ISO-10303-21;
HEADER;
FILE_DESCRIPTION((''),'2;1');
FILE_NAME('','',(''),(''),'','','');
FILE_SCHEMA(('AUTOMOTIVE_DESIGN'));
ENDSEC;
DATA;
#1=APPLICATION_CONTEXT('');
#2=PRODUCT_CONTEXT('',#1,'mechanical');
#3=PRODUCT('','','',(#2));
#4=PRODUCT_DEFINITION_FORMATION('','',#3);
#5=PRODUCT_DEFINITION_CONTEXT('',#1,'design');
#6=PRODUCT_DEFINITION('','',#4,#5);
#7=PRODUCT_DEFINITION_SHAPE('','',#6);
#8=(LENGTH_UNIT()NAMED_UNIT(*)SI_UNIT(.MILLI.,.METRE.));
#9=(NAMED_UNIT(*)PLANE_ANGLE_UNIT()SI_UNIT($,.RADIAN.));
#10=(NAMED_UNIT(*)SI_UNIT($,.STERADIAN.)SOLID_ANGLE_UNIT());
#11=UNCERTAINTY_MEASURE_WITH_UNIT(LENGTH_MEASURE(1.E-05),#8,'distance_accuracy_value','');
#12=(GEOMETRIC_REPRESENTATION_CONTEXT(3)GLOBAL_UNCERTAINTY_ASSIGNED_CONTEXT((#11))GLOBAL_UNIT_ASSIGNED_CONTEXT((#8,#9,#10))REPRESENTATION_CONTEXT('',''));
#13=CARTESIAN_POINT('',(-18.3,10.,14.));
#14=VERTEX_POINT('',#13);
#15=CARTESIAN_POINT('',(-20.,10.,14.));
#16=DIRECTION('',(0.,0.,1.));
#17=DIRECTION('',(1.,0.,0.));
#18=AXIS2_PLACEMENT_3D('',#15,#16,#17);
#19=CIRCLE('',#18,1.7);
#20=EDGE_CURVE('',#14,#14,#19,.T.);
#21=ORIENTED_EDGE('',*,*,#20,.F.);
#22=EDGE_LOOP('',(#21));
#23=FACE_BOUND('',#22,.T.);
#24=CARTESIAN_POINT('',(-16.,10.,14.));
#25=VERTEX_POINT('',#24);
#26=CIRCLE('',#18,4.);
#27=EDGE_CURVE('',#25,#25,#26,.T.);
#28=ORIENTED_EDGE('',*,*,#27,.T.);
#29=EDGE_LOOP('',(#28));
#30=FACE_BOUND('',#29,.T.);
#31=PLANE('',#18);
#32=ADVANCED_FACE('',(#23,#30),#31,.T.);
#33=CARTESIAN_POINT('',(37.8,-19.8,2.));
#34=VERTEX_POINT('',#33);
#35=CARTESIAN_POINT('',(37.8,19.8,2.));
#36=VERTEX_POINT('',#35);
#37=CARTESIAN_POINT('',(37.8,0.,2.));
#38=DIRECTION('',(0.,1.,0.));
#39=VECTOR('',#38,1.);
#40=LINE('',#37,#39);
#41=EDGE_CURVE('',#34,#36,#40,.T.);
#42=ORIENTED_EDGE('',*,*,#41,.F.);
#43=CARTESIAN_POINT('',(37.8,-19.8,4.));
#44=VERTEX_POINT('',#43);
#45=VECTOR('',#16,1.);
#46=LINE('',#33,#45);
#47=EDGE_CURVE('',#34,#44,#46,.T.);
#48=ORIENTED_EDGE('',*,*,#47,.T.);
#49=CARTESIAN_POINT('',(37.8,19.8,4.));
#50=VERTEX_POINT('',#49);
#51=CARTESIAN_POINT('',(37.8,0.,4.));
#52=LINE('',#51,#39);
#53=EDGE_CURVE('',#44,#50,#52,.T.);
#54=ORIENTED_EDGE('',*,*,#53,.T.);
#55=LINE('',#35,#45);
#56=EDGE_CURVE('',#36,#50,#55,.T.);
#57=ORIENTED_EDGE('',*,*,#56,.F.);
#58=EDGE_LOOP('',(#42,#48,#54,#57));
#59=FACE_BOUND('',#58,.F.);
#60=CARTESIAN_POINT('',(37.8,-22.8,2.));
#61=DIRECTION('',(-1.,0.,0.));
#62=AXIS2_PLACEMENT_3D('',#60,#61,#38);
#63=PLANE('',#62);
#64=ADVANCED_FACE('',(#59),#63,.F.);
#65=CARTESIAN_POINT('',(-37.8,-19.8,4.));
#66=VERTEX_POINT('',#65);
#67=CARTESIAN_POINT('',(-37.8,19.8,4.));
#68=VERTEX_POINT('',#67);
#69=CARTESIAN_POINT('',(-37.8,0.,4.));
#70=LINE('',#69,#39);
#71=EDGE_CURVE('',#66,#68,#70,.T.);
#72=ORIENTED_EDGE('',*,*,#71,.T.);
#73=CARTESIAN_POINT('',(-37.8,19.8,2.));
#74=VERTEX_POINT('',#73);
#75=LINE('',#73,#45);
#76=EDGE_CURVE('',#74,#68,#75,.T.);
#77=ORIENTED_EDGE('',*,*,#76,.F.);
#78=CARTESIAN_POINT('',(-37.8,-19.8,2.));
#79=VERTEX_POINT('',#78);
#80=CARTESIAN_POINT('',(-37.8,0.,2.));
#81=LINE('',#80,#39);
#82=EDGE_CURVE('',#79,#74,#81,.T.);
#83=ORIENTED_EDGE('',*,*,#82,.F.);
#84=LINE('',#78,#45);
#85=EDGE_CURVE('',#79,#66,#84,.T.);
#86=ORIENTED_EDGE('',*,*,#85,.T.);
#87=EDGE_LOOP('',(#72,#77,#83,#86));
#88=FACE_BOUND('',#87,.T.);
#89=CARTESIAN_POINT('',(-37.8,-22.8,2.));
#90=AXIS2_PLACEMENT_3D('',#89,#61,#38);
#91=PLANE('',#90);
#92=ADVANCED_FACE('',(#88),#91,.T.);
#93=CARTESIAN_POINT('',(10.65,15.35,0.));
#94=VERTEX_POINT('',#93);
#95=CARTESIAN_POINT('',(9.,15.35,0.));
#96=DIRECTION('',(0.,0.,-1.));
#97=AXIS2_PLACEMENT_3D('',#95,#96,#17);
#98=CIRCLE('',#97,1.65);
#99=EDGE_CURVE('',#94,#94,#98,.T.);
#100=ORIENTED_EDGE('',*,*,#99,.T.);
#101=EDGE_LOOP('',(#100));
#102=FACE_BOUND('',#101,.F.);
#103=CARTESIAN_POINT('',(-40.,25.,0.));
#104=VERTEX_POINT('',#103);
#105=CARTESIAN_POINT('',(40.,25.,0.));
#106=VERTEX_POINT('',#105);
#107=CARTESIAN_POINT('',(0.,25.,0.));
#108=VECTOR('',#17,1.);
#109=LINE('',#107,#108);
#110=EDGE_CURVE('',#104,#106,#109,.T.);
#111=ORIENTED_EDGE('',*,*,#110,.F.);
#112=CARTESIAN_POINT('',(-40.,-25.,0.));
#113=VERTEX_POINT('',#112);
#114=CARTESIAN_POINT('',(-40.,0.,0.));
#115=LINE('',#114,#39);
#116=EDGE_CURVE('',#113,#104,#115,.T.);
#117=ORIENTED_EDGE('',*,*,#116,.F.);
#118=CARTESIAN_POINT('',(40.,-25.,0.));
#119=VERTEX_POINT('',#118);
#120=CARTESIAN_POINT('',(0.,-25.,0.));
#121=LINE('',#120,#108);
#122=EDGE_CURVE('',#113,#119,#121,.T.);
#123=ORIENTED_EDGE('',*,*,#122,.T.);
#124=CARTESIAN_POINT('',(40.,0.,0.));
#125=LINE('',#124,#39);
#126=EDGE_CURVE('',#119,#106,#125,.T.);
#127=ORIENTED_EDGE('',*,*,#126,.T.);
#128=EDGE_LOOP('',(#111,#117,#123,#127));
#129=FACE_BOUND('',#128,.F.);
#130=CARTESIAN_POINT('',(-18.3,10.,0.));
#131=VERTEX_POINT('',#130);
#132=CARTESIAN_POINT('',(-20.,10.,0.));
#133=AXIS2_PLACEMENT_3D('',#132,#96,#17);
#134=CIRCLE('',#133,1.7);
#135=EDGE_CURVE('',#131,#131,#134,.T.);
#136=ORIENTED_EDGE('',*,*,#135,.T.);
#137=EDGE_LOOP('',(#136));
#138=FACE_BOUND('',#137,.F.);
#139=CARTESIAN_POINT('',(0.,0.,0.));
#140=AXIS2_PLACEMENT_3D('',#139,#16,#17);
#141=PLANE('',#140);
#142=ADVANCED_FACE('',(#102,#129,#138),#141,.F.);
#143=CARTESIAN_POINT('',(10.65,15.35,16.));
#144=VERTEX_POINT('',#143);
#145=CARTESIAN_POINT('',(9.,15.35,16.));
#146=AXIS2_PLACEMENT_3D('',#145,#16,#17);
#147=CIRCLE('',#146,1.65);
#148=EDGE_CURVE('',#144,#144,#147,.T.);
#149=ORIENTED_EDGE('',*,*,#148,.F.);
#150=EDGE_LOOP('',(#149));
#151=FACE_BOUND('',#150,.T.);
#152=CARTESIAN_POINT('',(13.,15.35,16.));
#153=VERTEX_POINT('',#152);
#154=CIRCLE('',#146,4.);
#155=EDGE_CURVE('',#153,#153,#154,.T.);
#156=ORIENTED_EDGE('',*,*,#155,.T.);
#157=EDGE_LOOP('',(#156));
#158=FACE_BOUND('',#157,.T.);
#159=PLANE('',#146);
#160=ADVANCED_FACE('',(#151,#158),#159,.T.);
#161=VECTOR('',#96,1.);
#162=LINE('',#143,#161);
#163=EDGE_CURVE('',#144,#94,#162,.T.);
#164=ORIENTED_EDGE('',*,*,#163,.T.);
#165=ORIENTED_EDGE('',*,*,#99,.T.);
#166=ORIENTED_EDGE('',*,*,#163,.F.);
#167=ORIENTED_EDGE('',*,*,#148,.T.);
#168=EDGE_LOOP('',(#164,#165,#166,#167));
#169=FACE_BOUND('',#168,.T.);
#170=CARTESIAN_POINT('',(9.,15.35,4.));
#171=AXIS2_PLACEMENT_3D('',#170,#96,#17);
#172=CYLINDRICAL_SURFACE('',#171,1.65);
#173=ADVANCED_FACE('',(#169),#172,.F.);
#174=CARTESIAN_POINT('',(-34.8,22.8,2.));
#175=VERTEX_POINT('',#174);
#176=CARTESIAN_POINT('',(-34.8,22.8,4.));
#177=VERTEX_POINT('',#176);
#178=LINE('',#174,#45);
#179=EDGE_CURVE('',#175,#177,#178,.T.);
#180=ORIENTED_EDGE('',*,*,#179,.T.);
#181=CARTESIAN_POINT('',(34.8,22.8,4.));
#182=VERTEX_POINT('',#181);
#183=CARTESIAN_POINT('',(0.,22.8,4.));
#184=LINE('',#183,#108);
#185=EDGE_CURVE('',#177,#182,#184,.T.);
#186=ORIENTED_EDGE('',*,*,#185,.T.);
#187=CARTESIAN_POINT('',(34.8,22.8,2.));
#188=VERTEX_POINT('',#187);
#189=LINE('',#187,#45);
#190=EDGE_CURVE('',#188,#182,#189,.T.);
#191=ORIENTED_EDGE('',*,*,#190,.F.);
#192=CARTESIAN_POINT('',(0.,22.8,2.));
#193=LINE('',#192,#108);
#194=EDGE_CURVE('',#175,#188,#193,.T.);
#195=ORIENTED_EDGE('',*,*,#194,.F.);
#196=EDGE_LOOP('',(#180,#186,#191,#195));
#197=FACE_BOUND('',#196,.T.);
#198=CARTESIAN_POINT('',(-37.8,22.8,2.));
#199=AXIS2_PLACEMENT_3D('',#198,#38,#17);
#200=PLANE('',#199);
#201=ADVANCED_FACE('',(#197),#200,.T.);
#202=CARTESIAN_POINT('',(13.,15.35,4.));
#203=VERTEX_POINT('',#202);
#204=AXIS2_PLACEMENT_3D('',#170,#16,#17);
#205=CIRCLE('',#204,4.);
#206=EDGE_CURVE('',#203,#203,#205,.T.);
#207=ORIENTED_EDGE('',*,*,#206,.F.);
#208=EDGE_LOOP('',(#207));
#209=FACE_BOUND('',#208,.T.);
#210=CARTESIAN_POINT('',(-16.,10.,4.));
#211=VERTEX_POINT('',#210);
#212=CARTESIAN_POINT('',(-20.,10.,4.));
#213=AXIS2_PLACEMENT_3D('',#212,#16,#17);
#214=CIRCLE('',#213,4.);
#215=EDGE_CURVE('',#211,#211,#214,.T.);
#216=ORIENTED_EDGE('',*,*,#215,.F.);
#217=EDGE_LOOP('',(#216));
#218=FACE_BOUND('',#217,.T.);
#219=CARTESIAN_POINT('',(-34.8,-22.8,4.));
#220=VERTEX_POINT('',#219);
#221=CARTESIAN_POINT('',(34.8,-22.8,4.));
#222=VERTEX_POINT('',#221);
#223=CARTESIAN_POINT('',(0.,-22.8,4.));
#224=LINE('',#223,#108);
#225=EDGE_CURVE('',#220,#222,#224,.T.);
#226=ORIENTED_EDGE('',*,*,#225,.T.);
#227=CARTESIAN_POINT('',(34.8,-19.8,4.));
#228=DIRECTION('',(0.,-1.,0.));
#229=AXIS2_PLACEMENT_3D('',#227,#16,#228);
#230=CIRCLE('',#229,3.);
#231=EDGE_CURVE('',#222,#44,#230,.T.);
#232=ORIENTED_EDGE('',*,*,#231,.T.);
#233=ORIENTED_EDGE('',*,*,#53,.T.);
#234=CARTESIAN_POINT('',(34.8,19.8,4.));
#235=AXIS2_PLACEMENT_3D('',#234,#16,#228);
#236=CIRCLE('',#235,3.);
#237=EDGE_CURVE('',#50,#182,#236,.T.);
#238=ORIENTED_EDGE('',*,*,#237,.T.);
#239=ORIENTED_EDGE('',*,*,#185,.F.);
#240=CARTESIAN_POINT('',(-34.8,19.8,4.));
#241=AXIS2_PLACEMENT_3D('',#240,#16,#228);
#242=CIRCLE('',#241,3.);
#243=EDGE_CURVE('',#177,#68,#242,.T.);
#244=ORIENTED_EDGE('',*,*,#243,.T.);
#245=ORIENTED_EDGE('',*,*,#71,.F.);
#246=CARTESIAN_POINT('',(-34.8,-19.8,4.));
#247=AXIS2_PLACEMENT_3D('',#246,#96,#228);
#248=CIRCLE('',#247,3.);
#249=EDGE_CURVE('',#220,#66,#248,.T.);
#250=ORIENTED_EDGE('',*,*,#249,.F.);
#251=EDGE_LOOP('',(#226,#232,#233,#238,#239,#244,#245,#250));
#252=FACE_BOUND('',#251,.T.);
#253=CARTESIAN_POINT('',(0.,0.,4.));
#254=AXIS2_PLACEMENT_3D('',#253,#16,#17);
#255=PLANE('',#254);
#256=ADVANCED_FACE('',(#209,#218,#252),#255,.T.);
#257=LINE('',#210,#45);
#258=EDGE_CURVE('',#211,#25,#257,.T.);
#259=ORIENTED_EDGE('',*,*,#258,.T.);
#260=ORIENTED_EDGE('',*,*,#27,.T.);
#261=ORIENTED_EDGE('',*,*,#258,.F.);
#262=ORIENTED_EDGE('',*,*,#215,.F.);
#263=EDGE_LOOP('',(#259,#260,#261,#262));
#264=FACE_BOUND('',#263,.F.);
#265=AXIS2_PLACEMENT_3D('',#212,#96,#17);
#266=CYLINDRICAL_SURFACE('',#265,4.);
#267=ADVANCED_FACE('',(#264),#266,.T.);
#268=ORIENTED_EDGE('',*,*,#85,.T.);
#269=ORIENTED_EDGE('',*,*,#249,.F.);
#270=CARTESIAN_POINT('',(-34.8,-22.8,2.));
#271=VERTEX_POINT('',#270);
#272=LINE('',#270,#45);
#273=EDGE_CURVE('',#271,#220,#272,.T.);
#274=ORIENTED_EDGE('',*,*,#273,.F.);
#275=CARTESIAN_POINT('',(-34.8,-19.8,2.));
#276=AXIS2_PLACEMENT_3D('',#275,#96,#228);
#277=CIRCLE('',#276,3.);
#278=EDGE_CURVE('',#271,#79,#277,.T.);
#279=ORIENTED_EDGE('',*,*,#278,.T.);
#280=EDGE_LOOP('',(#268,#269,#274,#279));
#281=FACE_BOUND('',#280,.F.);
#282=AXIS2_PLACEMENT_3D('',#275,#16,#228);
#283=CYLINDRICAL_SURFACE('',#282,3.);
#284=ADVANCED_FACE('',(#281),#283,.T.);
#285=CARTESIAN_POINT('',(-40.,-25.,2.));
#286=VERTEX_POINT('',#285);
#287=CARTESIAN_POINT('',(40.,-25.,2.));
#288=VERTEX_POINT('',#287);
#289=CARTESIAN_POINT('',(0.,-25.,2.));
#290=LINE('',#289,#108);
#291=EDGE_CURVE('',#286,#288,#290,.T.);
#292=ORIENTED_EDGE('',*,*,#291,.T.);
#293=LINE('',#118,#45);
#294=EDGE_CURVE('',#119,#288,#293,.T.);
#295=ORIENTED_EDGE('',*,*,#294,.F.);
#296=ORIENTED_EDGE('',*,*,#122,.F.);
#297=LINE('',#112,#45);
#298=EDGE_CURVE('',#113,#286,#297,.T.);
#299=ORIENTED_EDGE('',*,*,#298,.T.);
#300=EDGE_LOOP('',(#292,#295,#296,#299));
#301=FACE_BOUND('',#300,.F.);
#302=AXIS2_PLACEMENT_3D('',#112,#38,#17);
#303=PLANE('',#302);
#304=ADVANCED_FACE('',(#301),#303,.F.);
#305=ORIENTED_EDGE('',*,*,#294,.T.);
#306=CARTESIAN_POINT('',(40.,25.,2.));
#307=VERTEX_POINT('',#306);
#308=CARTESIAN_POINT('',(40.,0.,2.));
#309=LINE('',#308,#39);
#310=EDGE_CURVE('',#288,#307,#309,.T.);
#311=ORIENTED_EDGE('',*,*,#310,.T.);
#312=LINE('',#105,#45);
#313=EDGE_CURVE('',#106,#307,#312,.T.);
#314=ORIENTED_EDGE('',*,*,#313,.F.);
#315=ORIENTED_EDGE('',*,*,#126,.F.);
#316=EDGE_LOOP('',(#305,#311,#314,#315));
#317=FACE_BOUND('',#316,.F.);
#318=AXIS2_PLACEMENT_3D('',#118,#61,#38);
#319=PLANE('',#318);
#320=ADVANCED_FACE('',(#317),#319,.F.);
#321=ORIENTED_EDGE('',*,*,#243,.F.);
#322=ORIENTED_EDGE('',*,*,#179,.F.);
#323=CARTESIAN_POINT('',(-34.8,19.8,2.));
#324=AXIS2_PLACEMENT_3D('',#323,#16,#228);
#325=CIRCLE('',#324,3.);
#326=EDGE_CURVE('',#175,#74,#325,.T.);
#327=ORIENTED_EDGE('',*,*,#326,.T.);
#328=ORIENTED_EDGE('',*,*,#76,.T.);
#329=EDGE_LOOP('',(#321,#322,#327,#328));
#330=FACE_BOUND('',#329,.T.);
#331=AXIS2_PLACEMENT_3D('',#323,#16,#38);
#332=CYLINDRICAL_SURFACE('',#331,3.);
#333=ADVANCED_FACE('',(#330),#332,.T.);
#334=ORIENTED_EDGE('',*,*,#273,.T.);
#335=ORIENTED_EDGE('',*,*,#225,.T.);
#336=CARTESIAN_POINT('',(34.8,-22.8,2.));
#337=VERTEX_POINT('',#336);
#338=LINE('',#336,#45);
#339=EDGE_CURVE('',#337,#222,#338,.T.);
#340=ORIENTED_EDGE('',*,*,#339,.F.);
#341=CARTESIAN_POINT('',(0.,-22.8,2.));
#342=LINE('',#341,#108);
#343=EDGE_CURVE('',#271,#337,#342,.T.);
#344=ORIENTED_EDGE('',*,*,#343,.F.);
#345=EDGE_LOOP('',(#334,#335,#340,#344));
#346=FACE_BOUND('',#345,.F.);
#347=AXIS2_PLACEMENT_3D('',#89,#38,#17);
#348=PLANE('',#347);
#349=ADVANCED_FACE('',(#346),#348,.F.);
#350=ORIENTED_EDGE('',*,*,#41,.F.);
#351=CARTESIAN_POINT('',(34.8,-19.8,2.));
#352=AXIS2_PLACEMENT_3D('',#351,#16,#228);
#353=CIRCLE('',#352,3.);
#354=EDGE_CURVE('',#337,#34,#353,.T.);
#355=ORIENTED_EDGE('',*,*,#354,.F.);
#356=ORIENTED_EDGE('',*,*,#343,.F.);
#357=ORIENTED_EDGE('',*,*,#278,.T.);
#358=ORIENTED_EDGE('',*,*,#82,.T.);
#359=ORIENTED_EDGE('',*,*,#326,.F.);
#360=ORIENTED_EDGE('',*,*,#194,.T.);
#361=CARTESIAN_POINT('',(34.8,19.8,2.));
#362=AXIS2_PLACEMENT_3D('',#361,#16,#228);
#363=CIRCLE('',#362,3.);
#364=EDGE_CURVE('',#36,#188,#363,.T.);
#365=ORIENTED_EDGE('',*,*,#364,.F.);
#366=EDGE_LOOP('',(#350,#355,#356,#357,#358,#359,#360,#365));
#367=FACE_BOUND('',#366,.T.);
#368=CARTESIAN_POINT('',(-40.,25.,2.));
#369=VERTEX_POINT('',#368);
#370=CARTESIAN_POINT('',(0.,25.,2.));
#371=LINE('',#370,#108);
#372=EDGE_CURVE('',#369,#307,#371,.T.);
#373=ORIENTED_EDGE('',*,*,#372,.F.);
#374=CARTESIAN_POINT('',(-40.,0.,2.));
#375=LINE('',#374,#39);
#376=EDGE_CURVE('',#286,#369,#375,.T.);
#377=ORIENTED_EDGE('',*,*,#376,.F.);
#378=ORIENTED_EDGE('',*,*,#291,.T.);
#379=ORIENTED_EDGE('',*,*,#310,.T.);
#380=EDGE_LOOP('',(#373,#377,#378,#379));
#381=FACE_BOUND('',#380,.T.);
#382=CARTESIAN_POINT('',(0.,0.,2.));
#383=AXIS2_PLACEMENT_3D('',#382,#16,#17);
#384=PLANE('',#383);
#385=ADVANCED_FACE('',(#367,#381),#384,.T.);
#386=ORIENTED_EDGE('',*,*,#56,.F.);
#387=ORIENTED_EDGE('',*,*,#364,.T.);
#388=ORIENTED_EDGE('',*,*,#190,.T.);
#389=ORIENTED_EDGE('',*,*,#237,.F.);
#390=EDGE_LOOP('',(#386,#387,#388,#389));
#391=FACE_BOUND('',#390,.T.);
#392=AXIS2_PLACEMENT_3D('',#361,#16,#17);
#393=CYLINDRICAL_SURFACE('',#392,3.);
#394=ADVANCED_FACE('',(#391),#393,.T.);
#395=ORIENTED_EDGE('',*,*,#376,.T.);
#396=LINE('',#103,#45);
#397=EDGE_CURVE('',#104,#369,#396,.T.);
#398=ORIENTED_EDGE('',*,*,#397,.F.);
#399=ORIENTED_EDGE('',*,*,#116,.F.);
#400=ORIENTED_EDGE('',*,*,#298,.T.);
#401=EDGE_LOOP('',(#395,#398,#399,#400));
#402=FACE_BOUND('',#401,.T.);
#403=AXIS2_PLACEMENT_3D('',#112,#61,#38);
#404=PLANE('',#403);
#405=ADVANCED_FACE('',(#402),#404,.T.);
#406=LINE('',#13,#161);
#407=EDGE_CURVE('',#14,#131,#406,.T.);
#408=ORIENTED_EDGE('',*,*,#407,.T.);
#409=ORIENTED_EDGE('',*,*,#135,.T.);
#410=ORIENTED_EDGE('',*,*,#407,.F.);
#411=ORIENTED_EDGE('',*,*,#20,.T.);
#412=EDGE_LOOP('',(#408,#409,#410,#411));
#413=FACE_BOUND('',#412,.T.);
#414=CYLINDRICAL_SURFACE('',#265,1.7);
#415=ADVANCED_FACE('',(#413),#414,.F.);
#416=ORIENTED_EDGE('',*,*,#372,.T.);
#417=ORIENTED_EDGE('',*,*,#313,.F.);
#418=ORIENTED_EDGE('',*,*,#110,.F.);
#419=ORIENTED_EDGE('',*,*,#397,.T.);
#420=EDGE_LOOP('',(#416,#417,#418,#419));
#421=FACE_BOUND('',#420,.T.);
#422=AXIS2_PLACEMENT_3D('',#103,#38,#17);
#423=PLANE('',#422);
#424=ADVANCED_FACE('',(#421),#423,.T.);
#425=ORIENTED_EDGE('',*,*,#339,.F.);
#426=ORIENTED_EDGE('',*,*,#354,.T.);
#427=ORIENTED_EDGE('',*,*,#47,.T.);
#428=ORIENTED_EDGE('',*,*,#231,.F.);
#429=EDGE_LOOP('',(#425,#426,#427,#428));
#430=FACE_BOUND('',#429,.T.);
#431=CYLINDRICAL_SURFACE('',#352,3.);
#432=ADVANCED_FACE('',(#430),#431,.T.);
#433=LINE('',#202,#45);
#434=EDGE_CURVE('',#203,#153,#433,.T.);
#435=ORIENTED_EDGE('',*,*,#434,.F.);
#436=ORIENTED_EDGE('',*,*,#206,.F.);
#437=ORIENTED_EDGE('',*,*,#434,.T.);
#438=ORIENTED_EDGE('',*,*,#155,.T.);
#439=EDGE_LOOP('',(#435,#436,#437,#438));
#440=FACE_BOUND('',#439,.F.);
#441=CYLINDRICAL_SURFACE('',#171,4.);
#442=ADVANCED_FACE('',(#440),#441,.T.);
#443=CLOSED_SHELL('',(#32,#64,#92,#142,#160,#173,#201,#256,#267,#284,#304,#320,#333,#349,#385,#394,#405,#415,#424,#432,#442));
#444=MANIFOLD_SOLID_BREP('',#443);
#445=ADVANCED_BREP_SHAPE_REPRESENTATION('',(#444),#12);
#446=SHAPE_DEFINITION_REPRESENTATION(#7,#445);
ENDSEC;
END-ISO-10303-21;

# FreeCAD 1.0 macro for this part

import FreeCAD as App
import Part
import Sketcher

V = App.Vector
Q = App.Units.Quantity


def edges_at(feature, points):
    """Names of the edges that pass closest to the given points."""
    edges = feature.Shape.Edges
    near = lambda p: min(range(len(edges)), key=lambda i: edges[i].distToShape(Part.Vertex(*p))[0])
    return sorted({f"Edge{near(p) + 1}" for p in points})

doc = App.newDocument("Part")
body = doc.addObject("PartDesign::Body", "Body")

sketch1 = doc.addObject("Sketcher::SketchObject", "Sketch")
body.addObject(sketch1)
sketch1.AttachmentSupport = (doc.XY_Plane, [""])
sketch1.MapMode = "FlatFace"
sketch1.addGeometry([
    Part.LineSegment(V(-40, 25, 0), V(-40, -25, 0)),
    Part.LineSegment(V(-40, -25, 0), V(40, -25, 0)),
    Part.LineSegment(V(40, -25, 0), V(40, 25, 0)),
    Part.LineSegment(V(40, 25, 0), V(-40, 25, 0)),
], False)
sketch1.addConstraint([
    Sketcher.Constraint("Coincident", 0, 2, 1, 1),
    Sketcher.Constraint("Coincident", 1, 2, 2, 1),
    Sketcher.Constraint("Coincident", 2, 2, 3, 1),
    Sketcher.Constraint("Coincident", 3, 2, 0, 1),
    Sketcher.Constraint("Vertical", 0),
    Sketcher.Constraint("Horizontal", 1),
    Sketcher.Constraint("Vertical", 2),
    Sketcher.Constraint("Horizontal", 3),
    Sketcher.Constraint("Symmetric", 0, 2, 2, 2, -1, 1),
    Sketcher.Constraint("DistanceX", 1, 1, 1, 2, Q("80 mm")),
    Sketcher.Constraint("DistanceY", 0, 2, 0, 1, Q("50 mm")),
])
pad1 = doc.addObject("PartDesign::Pad", "Pad")
body.addObject(pad1)
pad1.Profile = sketch1
pad1.Length = 2

sketch2 = doc.addObject("Sketcher::SketchObject", "Sketch001")
body.addObject(sketch2)
sketch2.AttachmentSupport = (doc.XY_Plane, [""])
sketch2.MapMode = "FlatFace"
sketch2.AttachmentOffset = App.Placement(V(0, 0, 2), App.Rotation())
sketch2.addGeometry([
    Part.LineSegment(V(-38, 23, 0), V(-38, -23, 0)),
    Part.LineSegment(V(-38, -23, 0), V(38, -23, 0)),
    Part.LineSegment(V(38, -23, 0), V(38, 23, 0)),
    Part.LineSegment(V(38, 23, 0), V(-38, 23, 0)),
], False)
sketch2.addConstraint([
    Sketcher.Constraint("Coincident", 0, 2, 1, 1),
    Sketcher.Constraint("Coincident", 1, 2, 2, 1),
    Sketcher.Constraint("Coincident", 2, 2, 3, 1),
    Sketcher.Constraint("Coincident", 3, 2, 0, 1),
    Sketcher.Constraint("Vertical", 0),
    Sketcher.Constraint("Horizontal", 1),
    Sketcher.Constraint("Vertical", 2),
    Sketcher.Constraint("Horizontal", 3),
    Sketcher.Constraint("Symmetric", 0, 2, 2, 2, -1, 1),
    Sketcher.Constraint("DistanceX", 1, 1, 1, 2, Q("75.6 mm")),
    Sketcher.Constraint("DistanceY", 0, 2, 0, 1, Q("45.6 mm")),
])
pad2 = doc.addObject("PartDesign::Pad", "Pad001")
body.addObject(pad2)
pad2.Profile = sketch2
pad2.Length = 2
doc.recompute()

fillet = doc.addObject("PartDesign::Fillet", "Fillet")
body.addObject(fillet)
fillet.Base = (pad2, edges_at(pad2, [
    (-37.8, 22.8, 3),
    (-37.8, -22.8, 3),
    (37.8, 22.8, 3),
    (37.8, -22.8, 3),
]))
fillet.Radius = 3

sketch3 = doc.addObject("Sketcher::SketchObject", "Sketch002")
body.addObject(sketch3)
sketch3.AttachmentSupport = (doc.XY_Plane, [""])
sketch3.MapMode = "FlatFace"
sketch3.addGeometry([
    Part.Circle(V(-20, 10, 0), V(0, 0, 1), 1.7),
    Part.Circle(V(9, 15.3, 0), V(0, 0, 1), 1.6),
], False)
sketch3.addConstraint([
    Sketcher.Constraint("Diameter", 0, Q("3.4 mm")),
    Sketcher.Constraint("Diameter", 1, Q("3.3 mm")),
    Sketcher.Constraint("DistanceX", 0, 3, -1, 1, Q("20 mm")),
    Sketcher.Constraint("DistanceY", -1, 1, 0, 3, Q("10 mm")),
    Sketcher.Constraint("DistanceX", -1, 1, 1, 3, Q("9 mm")),
    Sketcher.Constraint("DistanceY", -1, 1, 1, 3, Q("15.35 mm")),
])
pocket1 = doc.addObject("PartDesign::Pocket", "Pocket")
body.addObject(pocket1)
pocket1.Profile = sketch3
pocket1.Length = 25
pocket1.Reversed = True

sketch4 = doc.addObject("Sketcher::SketchObject", "Sketch003")
body.addObject(sketch4)
sketch4.AttachmentSupport = (doc.XY_Plane, [""])
sketch4.MapMode = "FlatFace"
sketch4.AttachmentOffset = App.Placement(V(0, 0, 4), App.Rotation())
sketch4.addGeometry([
    Part.Circle(V(9, 15.3, 0), V(0, 0, 1), 4),
    Part.Circle(V(9, 15.3, 0), V(0, 0, 1), 1.6),
], False)
sketch4.addConstraint([
    Sketcher.Constraint("Coincident", 1, 3, 0, 3),
    Sketcher.Constraint("Diameter", 0, Q("8 mm")),
    Sketcher.Constraint("Diameter", 1, Q("3.3 mm")),
    Sketcher.Constraint("DistanceX", -1, 1, 0, 3, Q("9 mm")),
    Sketcher.Constraint("DistanceY", -1, 1, 0, 3, Q("15.35 mm")),
])
pad3 = doc.addObject("PartDesign::Pad", "Pad002")
body.addObject(pad3)
pad3.Profile = sketch4
pad3.Length = 12

sketch5 = doc.addObject("Sketcher::SketchObject", "Sketch004")
body.addObject(sketch5)
sketch5.AttachmentSupport = (doc.XY_Plane, [""])
sketch5.MapMode = "FlatFace"
sketch5.AttachmentOffset = App.Placement(V(0, 0, 4), App.Rotation())
sketch5.addGeometry([
    Part.Circle(V(-20, 10, 0), V(0, 0, 1), 4),
    Part.Circle(V(-20, 10, 0), V(0, 0, 1), 1.7),
], False)
sketch5.addConstraint([
    Sketcher.Constraint("Coincident", 1, 3, 0, 3),
    Sketcher.Constraint("Diameter", 0, Q("8 mm")),
    Sketcher.Constraint("Diameter", 1, Q("3.4 mm")),
    Sketcher.Constraint("DistanceX", 0, 3, -1, 1, Q("20 mm")),
    Sketcher.Constraint("DistanceY", -1, 1, 0, 3, Q("10 mm")),
])
pad4 = doc.addObject("PartDesign::Pad", "Pad003")
body.addObject(pad4)
pad4.Profile = sketch5
pad4.Length = 10

doc.recompute()
